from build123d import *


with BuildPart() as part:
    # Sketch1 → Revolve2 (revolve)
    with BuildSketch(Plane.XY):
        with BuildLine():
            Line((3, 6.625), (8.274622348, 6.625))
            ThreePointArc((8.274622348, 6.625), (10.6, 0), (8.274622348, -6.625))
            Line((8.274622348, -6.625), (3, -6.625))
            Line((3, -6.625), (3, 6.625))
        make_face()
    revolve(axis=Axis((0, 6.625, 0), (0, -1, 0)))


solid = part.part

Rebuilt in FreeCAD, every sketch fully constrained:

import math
import FreeCAD as App
import Part
import Sketcher

doc = App.newDocument("Part")
body = doc.addObject("PartDesign::Body", "Body")

# Sketch on XY plane
sketch1 = body.newObject("Sketcher::SketchObject", "Sketch")
sketch1.AttachmentSupport = (doc.getObject("XY_Plane"), [""])
sketch1.MapMode = "FlatFace"
sketch1.addGeometry([
    Part.LineSegment(App.Vector(8.274622, 6.625, 0), App.Vector(3, 6.625, 0)),
    Part.LineSegment(App.Vector(3, 6.625, 0), App.Vector(3, -6.625, 0)),
    Part.LineSegment(App.Vector(3, -6.625, 0), App.Vector(8.274622, -6.625, 0)),
    Part.ArcOfCircle(Part.Circle(App.Vector(0, 0, 0), App.Vector(0, 0, 1), 10.6), math.radians(-38.682187), math.radians(38.682187)),
], False)
sketch1.addConstraint([
    Sketcher.Constraint("Coincident", 0, 2, 1, 1),
    Sketcher.Constraint("Coincident", 1, 2, 2, 1),
    Sketcher.Constraint("Coincident", 2, 2, 3, 1),
    Sketcher.Constraint("Coincident", 3, 2, 0, 1),
    Sketcher.Constraint("Horizontal", 0),
    Sketcher.Constraint("Vertical", 1),
    Sketcher.Constraint("Horizontal", 2),
    Sketcher.Constraint("Coincident", 3, 3, -1, 1),
    Sketcher.Constraint("Vertical", 2, 2, 3, 2),
    Sketcher.Constraint("Radius", 3, 10.6),
    Sketcher.Constraint("DistanceX", -1, 1, 0, 2, 3.0),
    Sketcher.Constraint("DistanceY", 1, 2, 1, 1, 13.25),
])
revolution = body.newObject("PartDesign::Revolution", "Revolution")
revolution.Profile = sketch1
revolution.ReferenceAxis = (sketch1, ["V_Axis"])
revolution.Angle = 360

doc.recompute()
